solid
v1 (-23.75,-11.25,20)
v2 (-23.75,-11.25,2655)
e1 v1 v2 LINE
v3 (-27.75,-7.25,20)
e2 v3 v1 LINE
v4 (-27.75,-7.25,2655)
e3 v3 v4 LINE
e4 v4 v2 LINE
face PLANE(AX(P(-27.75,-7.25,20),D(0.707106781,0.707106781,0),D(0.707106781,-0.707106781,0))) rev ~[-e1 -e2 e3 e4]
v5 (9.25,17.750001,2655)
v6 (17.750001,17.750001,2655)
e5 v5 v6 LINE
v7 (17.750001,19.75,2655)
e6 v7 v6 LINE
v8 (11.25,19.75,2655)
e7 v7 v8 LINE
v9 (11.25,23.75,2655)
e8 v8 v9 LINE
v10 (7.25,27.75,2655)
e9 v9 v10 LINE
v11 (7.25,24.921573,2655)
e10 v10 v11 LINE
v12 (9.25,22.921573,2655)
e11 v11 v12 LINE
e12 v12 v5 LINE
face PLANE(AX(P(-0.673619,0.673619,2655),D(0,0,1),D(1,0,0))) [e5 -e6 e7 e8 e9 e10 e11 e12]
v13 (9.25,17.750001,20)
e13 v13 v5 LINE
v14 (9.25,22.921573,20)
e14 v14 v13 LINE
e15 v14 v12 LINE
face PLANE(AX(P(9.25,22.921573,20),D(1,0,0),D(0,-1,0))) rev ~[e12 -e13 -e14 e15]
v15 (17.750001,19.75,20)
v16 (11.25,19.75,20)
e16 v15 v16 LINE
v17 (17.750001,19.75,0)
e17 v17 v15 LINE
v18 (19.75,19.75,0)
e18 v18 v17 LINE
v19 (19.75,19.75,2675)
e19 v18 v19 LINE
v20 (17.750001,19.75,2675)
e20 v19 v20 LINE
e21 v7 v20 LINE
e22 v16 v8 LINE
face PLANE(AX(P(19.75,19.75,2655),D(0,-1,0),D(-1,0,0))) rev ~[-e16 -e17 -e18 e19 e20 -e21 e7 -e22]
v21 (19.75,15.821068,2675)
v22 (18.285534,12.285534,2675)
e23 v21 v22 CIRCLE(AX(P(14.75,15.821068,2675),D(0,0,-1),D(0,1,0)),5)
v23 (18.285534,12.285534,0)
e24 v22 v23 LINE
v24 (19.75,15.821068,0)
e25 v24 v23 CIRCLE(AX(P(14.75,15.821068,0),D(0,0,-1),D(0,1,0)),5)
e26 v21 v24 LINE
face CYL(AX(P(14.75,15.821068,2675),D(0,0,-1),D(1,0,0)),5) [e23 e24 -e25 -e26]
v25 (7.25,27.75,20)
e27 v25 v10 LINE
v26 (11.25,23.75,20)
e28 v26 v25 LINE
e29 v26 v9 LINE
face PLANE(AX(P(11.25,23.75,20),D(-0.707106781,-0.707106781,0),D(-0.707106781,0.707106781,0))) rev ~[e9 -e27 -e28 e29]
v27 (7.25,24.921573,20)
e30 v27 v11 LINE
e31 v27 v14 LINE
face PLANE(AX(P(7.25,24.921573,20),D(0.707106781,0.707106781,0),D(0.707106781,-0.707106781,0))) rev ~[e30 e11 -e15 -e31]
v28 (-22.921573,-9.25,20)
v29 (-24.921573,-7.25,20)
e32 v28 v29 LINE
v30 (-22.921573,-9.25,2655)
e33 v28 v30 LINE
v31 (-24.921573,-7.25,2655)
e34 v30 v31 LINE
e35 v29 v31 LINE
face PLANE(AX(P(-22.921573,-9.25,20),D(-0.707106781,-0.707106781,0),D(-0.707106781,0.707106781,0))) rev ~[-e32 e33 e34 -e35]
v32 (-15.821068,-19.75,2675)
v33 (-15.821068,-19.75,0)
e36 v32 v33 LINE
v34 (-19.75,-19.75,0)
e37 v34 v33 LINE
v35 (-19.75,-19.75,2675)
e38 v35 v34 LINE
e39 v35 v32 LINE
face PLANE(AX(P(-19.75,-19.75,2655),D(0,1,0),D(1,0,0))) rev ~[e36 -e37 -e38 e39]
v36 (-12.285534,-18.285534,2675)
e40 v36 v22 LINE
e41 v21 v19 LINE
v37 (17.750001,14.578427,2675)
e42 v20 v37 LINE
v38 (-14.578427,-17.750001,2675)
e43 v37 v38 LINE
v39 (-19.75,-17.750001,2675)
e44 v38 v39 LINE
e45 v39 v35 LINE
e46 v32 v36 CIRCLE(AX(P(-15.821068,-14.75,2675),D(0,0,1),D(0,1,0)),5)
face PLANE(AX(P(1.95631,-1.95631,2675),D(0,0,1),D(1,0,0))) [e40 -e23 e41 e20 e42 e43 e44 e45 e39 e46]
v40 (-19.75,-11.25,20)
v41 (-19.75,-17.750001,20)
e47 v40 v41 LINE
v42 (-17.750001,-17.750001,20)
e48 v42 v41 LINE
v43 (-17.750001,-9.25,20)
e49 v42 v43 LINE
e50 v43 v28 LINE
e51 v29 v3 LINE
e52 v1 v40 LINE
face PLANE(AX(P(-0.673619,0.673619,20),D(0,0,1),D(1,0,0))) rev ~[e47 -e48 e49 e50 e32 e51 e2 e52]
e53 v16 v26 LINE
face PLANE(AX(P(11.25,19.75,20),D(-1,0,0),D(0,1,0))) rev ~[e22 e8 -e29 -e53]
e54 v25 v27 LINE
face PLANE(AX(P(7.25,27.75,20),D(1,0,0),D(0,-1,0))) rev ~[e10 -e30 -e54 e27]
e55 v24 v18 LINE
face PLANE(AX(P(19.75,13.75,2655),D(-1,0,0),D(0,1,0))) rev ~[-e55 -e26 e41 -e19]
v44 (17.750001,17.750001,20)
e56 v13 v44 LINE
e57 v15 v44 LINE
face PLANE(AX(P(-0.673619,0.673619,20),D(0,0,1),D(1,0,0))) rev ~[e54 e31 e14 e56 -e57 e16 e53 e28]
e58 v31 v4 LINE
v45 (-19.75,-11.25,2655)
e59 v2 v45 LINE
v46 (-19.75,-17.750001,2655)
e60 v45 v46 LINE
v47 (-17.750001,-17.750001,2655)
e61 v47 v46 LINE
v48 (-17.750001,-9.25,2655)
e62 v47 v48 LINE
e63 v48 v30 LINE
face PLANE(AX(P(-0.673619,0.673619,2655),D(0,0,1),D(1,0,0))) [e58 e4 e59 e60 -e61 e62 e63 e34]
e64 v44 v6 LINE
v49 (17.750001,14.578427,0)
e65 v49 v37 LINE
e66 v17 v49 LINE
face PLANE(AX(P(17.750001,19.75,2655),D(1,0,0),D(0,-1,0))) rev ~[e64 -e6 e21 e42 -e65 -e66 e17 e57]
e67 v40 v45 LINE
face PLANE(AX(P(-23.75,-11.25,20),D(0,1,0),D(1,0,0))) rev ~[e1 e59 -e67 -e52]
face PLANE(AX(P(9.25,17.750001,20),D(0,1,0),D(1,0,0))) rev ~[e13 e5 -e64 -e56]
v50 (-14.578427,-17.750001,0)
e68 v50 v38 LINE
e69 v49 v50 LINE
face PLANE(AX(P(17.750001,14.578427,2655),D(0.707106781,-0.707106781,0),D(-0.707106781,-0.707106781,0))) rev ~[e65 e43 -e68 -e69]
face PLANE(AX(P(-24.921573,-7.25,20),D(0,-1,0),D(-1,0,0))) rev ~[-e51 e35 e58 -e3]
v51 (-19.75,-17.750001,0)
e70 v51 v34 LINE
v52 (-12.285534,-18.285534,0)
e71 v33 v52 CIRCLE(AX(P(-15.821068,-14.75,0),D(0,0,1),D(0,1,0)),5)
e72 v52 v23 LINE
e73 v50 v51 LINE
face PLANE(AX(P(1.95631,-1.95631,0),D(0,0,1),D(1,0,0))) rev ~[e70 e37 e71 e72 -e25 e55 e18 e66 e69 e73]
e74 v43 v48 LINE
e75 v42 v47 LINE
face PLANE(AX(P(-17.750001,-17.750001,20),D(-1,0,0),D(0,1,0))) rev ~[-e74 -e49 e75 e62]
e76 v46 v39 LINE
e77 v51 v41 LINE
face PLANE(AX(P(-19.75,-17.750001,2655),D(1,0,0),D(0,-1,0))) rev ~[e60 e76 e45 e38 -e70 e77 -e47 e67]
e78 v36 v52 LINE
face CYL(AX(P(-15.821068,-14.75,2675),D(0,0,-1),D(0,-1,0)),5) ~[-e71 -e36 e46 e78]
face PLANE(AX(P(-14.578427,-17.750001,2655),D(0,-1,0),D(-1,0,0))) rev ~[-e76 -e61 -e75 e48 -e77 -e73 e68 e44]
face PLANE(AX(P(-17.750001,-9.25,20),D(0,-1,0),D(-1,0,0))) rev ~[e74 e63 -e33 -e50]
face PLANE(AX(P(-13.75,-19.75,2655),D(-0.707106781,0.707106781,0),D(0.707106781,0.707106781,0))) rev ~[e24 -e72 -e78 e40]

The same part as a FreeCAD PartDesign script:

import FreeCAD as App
import Part
import Sketcher

V = App.Vector
Q = App.Units.Quantity


def edges_at(feature, points):
    """Names of the edges that pass closest to the given points."""
    edges = feature.Shape.Edges
    near = lambda p: min(range(len(edges)), key=lambda i: edges[i].distToShape(Part.Vertex(*p))[0])
    return sorted({f"Edge{near(p) + 1}" for p in points})


def add_polygon(sketch, points):
    """Adds a closed chain of lines whose ends are joined by coincident constraints."""
    first, n = sketch.GeometryCount, len(points)
    for a, b in zip(points, points[1:] + points[:1]):
        sketch.addGeometry(Part.LineSegment(App.Vector(*a, 0), App.Vector(*b, 0)), False)
    for i in range(n):
        sketch.addConstraint(Sketcher.Constraint("Coincident", first + i, 2, first + (i + 1) % n, 1))

doc = App.newDocument("Part")
body = doc.addObject("PartDesign::Body", "Body")

# Sketch on XY plane
sketch1 = body.newObject("Sketcher::SketchObject", "Sketch")
sketch1.AttachmentSupport = (doc.getObject("XY_Plane"), [""])
sketch1.MapMode = "FlatFace"
add_polygon(sketch1, [(-19.8, -17.8), (-19.8, -19.8), (-13.8, -19.8), (19.8, 13.8), (19.8, 19.8), (17.8, 19.8), (17.8, 14.6), (-14.6, -17.8)])  # lines 0-7
sketch1.addConstraint([
    Sketcher.Constraint("Vertical", 0),
    Sketcher.Constraint("Horizontal", 1),
    Sketcher.Constraint("Vertical", 3),
    Sketcher.Constraint("Horizontal", 4),
    Sketcher.Constraint("Vertical", 5),
    Sketcher.Constraint("Horizontal", 7),
    Sketcher.Constraint("Symmetric", 0, 2, 3, 2, -1, 1),
    Sketcher.Constraint("Parallel", 2, 6),
    Sketcher.Constraint("Equal", 4, 0),
    Sketcher.Constraint("Equal", 1, 3),
    Sketcher.Constraint("Equal", 7, 5),
    Sketcher.Constraint("DistanceX", 1, 1, 1, 2, Q("6 mm")),
    Sketcher.Constraint("DistanceX", 4, 2, 4, 1, Q("1.999999 mm")),
    Sketcher.Constraint("DistanceX", 1, 2, 2, 2, Q("33.5 mm")),
    Sketcher.Constraint("Distance", 6, Q("45.719301 mm")),
])
pad1 = body.newObject("PartDesign::Pad", "Pad")
pad1.Profile = sketch1
pad1.Length = 20

# Sketch on XY plane
sketch2 = body.newObject("Sketcher::SketchObject", "Sketch001")
sketch2.AttachmentSupport = (doc.getObject("XY_Plane"), [""])
sketch2.MapMode = "FlatFace"
sketch2.AttachmentOffset = App.Placement(V(0, 0, 20), App.Rotation())
add_polygon(sketch2, [(-19.8, -19.8), (-13.8, -19.8), (19.8, 13.8), (19.8, 19.8), (11.2, 19.8), (11.2, 23.8), (7.2, 27.8), (7.2, 24.9), (9.2, 22.9), (9.2, 17.8), (17.8, 17.8), (17.8, 14.6), (-14.6, -17.8), (-17.8, -17.8), (-17.8, -9.2), (-22.9, -9.2), (-24.9, -7.2), (-27.8, -7.2), (-23.8, -11.2), (-19.8, -11.2)])  # lines 0-19
sketch2.addConstraint([
    Sketcher.Constraint("Horizontal", 0),
    Sketcher.Constraint("Vertical", 2),
    Sketcher.Constraint("Horizontal", 3),
    Sketcher.Constraint("Vertical", 4),
    Sketcher.Constraint("Vertical", 6),
    Sketcher.Constraint("Vertical", 8),
    Sketcher.Constraint("Horizontal", 9),
    Sketcher.Constraint("Vertical", 10),
    Sketcher.Constraint("Horizontal", 12),
    Sketcher.Constraint("Vertical", 13),
    Sketcher.Constraint("Horizontal", 14),
    Sketcher.Constraint("Horizontal", 16),
    Sketcher.Constraint("Horizontal", 18),
    Sketcher.Constraint("Vertical", 19),
    Sketcher.Constraint("Symmetric", 9, 2, 12, 2, -1, 1),
    Sketcher.Constraint("Symmetric", 2, 2, 19, 2, -1, 1),
    Sketcher.Constraint("Perpendicular", 1, 5),
    Sketcher.Constraint("Parallel", 5, 7),
    Sketcher.Constraint("Perpendicular", 7, 11),
    Sketcher.Constraint("Perpendicular", 11, 15),
    Sketcher.Constraint("Parallel", 15, 17),
    Sketcher.Constraint("Equal", 3, 9),
    Sketcher.Constraint("Equal", 0, 2),
    Sketcher.Constraint("Equal", 18, 4),
    Sketcher.Constraint("Equal", 16, 6),
    Sketcher.Constraint("Equal", 14, 8),
    Sketcher.Constraint("Equal", 12, 10),
    Sketcher.Constraint("Equal", 9, 13),
    Sketcher.Constraint("Equal", 13, 19),
    Sketcher.Constraint("Equal", 7, 15),
    Sketcher.Constraint("DistanceX", 0, 1, 0, 2, Q("6 mm")),
    Sketcher.Constraint("DistanceX", 18, 1, 18, 2, Q("4 mm")),
    Sketcher.Constraint("DistanceX", 3, 2, 3, 1, Q("8.5 mm")),
    Sketcher.Constraint("DistanceX", 0, 2, 3, 2, Q("25 mm")),
    Sketcher.Constraint("DistanceX", 5, 2, 4, 2, Q("4 mm")),
    Sketcher.Constraint("DistanceX", 7, 2, 4, 2, Q("2 mm")),
    Sketcher.Constraint("Distance", 11, Q("45.719301 mm")),
    Sketcher.Constraint("DistanceX", 14, 2, 14, 1, Q("5.171572 mm")),
])
pad2 = body.newObject("PartDesign::Pad", "Pad001")
pad2.Profile = sketch2
pad2.Length = 2635

# Sketch on XY plane
sketch3 = body.newObject("Sketcher::SketchObject", "Sketch002")
sketch3.AttachmentSupport = (doc.getObject("XY_Plane"), [""])
sketch3.MapMode = "FlatFace"
sketch3.AttachmentOffset = App.Placement(V(0, 0, 2655), App.Rotation())
add_polygon(sketch3, [(19.8, 13.8), (19.8, 19.8), (17.8, 19.8), (17.8, 14.6), (-14.6, -17.8), (-19.8, -17.8), (-19.8, -19.8), (-13.8, -19.8)])  # lines 0-7
sketch3.addConstraint([
    Sketcher.Constraint("Vertical", 0),
    Sketcher.Constraint("Horizontal", 1),
    Sketcher.Constraint("Vertical", 2),
    Sketcher.Constraint("Horizontal", 4),
    Sketcher.Constraint("Vertical", 5),
    Sketcher.Constraint("Horizontal", 6),
    Sketcher.Constraint("Symmetric", 0, 2, 5, 2, -1, 1),
    Sketcher.Constraint("Parallel", 3, 7),
    Sketcher.Constraint("Equal", 6, 0),
    Sketcher.Constraint("Equal", 4, 2),
    Sketcher.Constraint("Equal", 1, 5),
    Sketcher.Constraint("DistanceX", 1, 2, 1, 1, Q("1.999999 mm")),
    Sketcher.Constraint("DistanceX", 6, 1, 6, 2, Q("6 mm")),
    Sketcher.Constraint("DistanceY", 3, 2, 1, 2, Q("37.500001 mm")),
    Sketcher.Constraint("Distance", 3, Q("45.719301 mm")),
])
pad3 = body.newObject("PartDesign::Pad", "Pad002")
pad3.Profile = sketch3
pad3.Length = 20
doc.recompute()

fillet = body.newObject("PartDesign::Fillet", "Fillet")
fillet.Base = (pad3, edges_at(pad3, [(19.75, 13.75, 1337.5), (-13.75, -19.75, 1337.5)]))
fillet.Radius = 5

doc.recompute()
